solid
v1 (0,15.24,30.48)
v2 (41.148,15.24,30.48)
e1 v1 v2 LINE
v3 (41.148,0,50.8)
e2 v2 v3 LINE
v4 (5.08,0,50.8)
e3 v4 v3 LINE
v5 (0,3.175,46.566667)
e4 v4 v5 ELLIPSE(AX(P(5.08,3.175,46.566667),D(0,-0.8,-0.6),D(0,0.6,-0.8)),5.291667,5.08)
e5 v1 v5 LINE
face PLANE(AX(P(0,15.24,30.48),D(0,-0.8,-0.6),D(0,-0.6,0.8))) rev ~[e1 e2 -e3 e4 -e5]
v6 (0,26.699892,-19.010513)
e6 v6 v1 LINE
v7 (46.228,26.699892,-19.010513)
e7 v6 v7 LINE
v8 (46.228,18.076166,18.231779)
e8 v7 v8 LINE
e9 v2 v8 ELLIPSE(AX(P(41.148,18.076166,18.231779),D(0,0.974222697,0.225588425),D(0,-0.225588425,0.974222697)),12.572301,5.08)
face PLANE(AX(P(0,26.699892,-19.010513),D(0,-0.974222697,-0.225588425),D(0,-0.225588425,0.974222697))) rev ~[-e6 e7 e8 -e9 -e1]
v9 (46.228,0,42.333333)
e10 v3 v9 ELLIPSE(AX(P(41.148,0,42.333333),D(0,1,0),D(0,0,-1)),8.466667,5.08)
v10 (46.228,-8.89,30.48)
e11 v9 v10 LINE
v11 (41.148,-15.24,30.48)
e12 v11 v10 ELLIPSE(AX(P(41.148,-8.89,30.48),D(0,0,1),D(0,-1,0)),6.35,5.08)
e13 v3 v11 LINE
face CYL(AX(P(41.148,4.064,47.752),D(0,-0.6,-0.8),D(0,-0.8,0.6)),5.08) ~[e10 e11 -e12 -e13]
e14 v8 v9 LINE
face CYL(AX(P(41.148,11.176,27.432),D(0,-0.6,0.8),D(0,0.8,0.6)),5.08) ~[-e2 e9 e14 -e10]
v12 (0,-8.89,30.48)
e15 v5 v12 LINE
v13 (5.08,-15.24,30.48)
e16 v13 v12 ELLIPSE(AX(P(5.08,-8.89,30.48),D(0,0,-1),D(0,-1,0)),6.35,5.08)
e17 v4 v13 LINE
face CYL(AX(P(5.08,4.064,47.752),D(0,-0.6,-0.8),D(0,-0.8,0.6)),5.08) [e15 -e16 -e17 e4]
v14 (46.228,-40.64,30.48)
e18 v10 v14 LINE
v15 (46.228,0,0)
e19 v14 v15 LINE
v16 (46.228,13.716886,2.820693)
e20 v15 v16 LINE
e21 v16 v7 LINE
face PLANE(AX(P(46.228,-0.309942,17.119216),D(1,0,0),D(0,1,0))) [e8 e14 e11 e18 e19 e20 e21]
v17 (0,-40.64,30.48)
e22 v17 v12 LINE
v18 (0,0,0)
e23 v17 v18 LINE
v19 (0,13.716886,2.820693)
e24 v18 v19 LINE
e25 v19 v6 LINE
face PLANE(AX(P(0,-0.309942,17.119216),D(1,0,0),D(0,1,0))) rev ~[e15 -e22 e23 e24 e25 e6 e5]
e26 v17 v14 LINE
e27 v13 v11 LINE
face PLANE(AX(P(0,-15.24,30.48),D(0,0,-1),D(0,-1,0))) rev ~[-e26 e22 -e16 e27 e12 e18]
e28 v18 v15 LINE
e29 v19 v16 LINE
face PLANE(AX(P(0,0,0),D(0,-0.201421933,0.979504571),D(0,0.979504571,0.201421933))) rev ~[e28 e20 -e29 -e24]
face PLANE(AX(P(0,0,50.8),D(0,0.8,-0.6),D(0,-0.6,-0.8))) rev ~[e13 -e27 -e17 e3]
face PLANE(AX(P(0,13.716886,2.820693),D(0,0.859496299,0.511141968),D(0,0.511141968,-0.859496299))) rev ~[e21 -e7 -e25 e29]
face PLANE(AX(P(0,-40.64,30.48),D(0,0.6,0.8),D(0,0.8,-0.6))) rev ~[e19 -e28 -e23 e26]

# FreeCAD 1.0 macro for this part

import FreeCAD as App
import Part
import Sketcher

V = App.Vector
Q = App.Units.Quantity


def edges_at(feature, points):
    """Names of the edges that pass closest to the given points."""
    edges = feature.Shape.Edges
    near = lambda p: min(range(len(edges)), key=lambda i: edges[i].distToShape(Part.Vertex(*p))[0])
    return sorted({f"Edge{near(p) + 1}" for p in points})


def add_polygon(sketch, points):
    """Adds a closed chain of lines whose ends are joined by coincident constraints."""
    first, n = sketch.GeometryCount, len(points)
    for a, b in zip(points, points[1:] + points[:1]):
        sketch.addGeometry(Part.LineSegment(App.Vector(*a, 0), App.Vector(*b, 0)), False)
    for i in range(n):
        sketch.addConstraint(Sketcher.Constraint("Coincident", first + i, 2, first + (i + 1) % n, 1))

doc = App.newDocument("Part")
body = doc.addObject("PartDesign::Body", "Body")

# Sketch on YZ plane
sketch1 = doc.addObject("Sketcher::SketchObject", "Sketch")
body.addObject(sketch1)
sketch1.AttachmentSupport = (doc.YZ_Plane, [""])
sketch1.MapMode = "FlatFace"
add_polygon(sketch1, [(0, 0), (14, 3), (27, -19), (15, 30), (0, 51), (-15, 30), (-41, 30)])  # lines 0-6
sketch1.addConstraint([
    Sketcher.Constraint("Horizontal", 5),
    Sketcher.Constraint("Coincident", 6, 2, -1, 1),
    Sketcher.Constraint("Symmetric", 2, 2, 4, 2, -2),
    Sketcher.Constraint("PointOnObject", 3, 2, -2),
    Sketcher.Constraint("Perpendicular", 4, 6),
    Sketcher.Constraint("Equal", 1, 3),
    Sketcher.Constraint("Equal", 2, 6),
    Sketcher.Constraint("DistanceX", 5, 2, 5, 1, Q("1 in")),
    Sketcher.Constraint("Distance", 1, Q("1 in")),
    Sketcher.Constraint("Distance", 2, Q("2 in")),
    Sketcher.Constraint("Distance", 0, Q("14.003902 mm")),
    Sketcher.Constraint("DistanceX", -1, 1, 1, 2, Q("26.699892 mm")),
])
pad1 = doc.addObject("PartDesign::Pad", "Pad")
body.addObject(pad1)
pad1.Profile = sketch1
pad1.Length = Q("1.82 in")
doc.recompute()

fillet = doc.addObject("PartDesign::Fillet", "Fillet")
body.addObject(fillet)
fillet.Base = (pad1, edges_at(pad1, [(0, -7.62, 40.64), (46.228, -7.62, 40.64), (46.228, 7.62, 40.64)]))
fillet.Radius = Q("0.2 in")

doc.recompute()
